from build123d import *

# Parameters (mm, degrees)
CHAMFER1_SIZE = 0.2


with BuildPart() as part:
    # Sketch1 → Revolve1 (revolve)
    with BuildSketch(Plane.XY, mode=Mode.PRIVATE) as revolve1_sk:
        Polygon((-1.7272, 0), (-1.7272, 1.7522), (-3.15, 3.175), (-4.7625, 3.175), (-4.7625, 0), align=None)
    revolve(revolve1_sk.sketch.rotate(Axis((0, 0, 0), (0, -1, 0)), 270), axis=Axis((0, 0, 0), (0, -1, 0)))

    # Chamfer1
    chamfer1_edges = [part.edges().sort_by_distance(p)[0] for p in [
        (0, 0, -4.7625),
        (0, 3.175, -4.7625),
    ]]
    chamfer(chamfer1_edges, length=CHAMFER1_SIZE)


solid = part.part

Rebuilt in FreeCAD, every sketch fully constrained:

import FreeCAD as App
import Part
import Sketcher
Q = App.Units.Quantity


def edges_at(feature, points):
    """Names of the edges that pass closest to the given points."""
    edges = feature.Shape.Edges
    near = lambda p: min(range(len(edges)), key=lambda i: edges[i].distToShape(Part.Vertex(*p))[0])
    return sorted({f"Edge{near(p) + 1}" for p in points})


def add_polygon(sketch, points):
    """Adds a closed chain of lines whose ends are joined by coincident constraints."""
    first, n = sketch.GeometryCount, len(points)
    for a, b in zip(points, points[1:] + points[:1]):
        sketch.addGeometry(Part.LineSegment(App.Vector(*a, 0), App.Vector(*b, 0)), False)
    for i in range(n):
        sketch.addConstraint(Sketcher.Constraint("Coincident", first + i, 2, first + (i + 1) % n, 1))

doc = App.newDocument("Part")
body = doc.addObject("PartDesign::Body", "Body")

# Sketch on XY plane
sketch1 = doc.addObject("Sketcher::SketchObject", "Sketch")
body.addObject(sketch1)
sketch1.AttachmentSupport = (doc.XY_Plane, [""])
sketch1.MapMode = "FlatFace"
add_polygon(sketch1, [(-1.7, 0), (-1.7, 1.8), (-3.1, 3.2), (-4.8, 3.2), (-4.8, 0)])  # lines 0-4
sketch1.addConstraint([
    Sketcher.Constraint("Vertical", 0),
    Sketcher.Constraint("Horizontal", 2),
    Sketcher.Constraint("Vertical", 3),
    Sketcher.Constraint("Horizontal", 4),
    Sketcher.Constraint("PointOnObject", 3, 2, -1),
    Sketcher.Constraint("Angle", 1, Q("135 deg")),
    Sketcher.Constraint("DistanceY", 3, 2, 3, 1, Q("3.175 mm")),
    Sketcher.Constraint("DistanceX", 1, 2, -1, 1, Q("3.15 mm")),
    Sketcher.Constraint("DistanceX", 2, 2, 2, 1, Q("1.6125 mm")),
    Sketcher.Constraint("DistanceX", 4, 1, 4, 2, Q("3.0353 mm")),
])
revolution = doc.addObject("PartDesign::Revolution", "Revolution")
body.addObject(revolution)
revolution.Profile = sketch1
revolution.ReferenceAxis = (sketch1, ["V_Axis"])
revolution.Angle = 360
doc.recompute()

chamfer = doc.addObject("PartDesign::Chamfer", "Chamfer")
body.addObject(chamfer)
chamfer.Base = (revolution, edges_at(revolution, [(0, 0, -4.763), (0, 3.175, -4.763)]))
chamfer.Size = 0.2

doc.recompute()
